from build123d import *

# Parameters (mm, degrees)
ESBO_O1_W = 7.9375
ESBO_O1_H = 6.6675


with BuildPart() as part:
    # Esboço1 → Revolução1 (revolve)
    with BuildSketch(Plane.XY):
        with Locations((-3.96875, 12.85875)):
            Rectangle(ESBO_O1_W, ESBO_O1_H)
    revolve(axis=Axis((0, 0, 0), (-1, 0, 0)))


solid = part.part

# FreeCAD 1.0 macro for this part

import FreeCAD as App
import Part
import Sketcher
from FreeCAD import Vector
Q = App.Units.Quantity

doc = App.newDocument("Part")
body = doc.addObject("PartDesign::Body", "Body")

# Sketch on XY plane
sketch1 = body.newObject("Sketcher::SketchObject", "Sketch")
sketch1.AttachmentSupport = (doc.getObject("XY_Plane"), [""])
sketch1.MapMode = "FlatFace"
sketch1.addGeometry(Part.LineSegment(Vector(-8, 16, 0), Vector(-8, 10, 0)), False)
sketch1.addGeometry(Part.LineSegment(Vector(-8, 10, 0), Vector(0, 10, 0)), False)
sketch1.addGeometry(Part.LineSegment(Vector(0, 10, 0), Vector(0, 16, 0)), False)
sketch1.addGeometry(Part.LineSegment(Vector(0, 16, 0), Vector(-8, 16, 0)), False)
sketch1.addConstraint(Sketcher.Constraint("Coincident", 0, 2, 1, 1))
sketch1.addConstraint(Sketcher.Constraint("Coincident", 1, 2, 2, 1))
sketch1.addConstraint(Sketcher.Constraint("Coincident", 2, 2, 3, 1))
sketch1.addConstraint(Sketcher.Constraint("Coincident", 3, 2, 0, 1))
sketch1.addConstraint(Sketcher.Constraint("Vertical", 0))
sketch1.addConstraint(Sketcher.Constraint("Horizontal", 1))
sketch1.addConstraint(Sketcher.Constraint("Vertical", 2))
sketch1.addConstraint(Sketcher.Constraint("Horizontal", 3))
sketch1.addConstraint(Sketcher.Constraint("PointOnObject", 1, 2, -2))
sketch1.addConstraint(Sketcher.Constraint("DistanceX", 1, 1, 1, 2, Q("0.3125 in")))
sketch1.addConstraint(Sketcher.Constraint("DistanceY", 0, 2, 0, 1, Q("0.2625 in")))
sketch1.addConstraint(Sketcher.Constraint("DistanceY", -1, 1, 0, 2, Q("0.375 in")))
revolution = body.newObject("PartDesign::Revolution", "Revolution")
revolution.Profile = sketch1
revolution.ReferenceAxis = (sketch1, ["H_Axis"])
revolution.Angle = 360

doc.recompute()
